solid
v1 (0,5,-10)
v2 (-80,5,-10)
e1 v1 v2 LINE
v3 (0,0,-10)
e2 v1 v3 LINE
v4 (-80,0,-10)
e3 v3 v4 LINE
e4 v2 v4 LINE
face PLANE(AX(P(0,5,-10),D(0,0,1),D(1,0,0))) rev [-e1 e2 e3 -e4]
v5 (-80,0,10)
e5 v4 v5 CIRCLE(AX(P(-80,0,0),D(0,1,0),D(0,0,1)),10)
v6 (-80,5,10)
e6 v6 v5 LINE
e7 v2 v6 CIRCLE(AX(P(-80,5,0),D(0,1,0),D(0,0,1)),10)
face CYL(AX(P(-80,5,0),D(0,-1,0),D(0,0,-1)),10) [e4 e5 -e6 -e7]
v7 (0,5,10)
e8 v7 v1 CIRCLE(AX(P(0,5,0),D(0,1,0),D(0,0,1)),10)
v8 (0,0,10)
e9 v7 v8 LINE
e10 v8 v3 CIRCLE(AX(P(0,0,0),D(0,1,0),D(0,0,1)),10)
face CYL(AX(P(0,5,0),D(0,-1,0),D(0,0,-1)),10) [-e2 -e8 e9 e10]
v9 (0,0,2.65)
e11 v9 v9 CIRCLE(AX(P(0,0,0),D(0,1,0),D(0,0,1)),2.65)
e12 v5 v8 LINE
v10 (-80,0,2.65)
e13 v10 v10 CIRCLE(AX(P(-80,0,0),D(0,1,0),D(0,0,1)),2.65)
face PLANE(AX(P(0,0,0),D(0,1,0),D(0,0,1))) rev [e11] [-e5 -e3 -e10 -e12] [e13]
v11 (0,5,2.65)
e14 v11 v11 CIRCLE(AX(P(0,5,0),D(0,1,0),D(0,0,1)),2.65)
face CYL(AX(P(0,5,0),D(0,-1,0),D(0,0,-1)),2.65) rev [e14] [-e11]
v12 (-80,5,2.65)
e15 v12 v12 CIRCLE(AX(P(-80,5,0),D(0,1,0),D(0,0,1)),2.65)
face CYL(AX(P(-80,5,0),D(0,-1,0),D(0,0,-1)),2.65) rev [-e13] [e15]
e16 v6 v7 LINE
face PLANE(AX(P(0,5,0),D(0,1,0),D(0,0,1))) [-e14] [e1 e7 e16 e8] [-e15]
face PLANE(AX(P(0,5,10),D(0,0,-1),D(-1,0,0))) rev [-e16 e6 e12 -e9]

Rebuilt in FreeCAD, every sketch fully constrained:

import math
import FreeCAD as App
import Part
import Sketcher
Q = App.Units.Quantity

doc = App.newDocument("Part")
body = doc.addObject("PartDesign::Body", "Body")

sketch1 = body.newObject("Sketcher::SketchObject", "Sketch")
sketch1.AttachmentSupport = (doc.getObject("XZ_Plane"), [""])
sketch1.MapMode = "FlatFace"
sketch1.addGeometry([
    Part.LineSegment(App.Vector(-80, 10, 0), App.Vector(0, 10, 0)),
    Part.ArcOfCircle(Part.Circle(App.Vector(0, 0, 0), App.Vector(0, 0, 1), 10), math.radians(-90), math.radians(90)),
    Part.LineSegment(App.Vector(0, -10, 0), App.Vector(-80, -10, 0)),
    Part.ArcOfCircle(Part.Circle(App.Vector(-80, 0, 0), App.Vector(0, 0, 1), 10), math.radians(90), math.radians(270)),
    Part.Circle(App.Vector(0, 0, 0), App.Vector(0, 0, 1), 2.65),
    Part.Circle(App.Vector(-80, 0, 0), App.Vector(0, 0, 1), 2.65),
], False)
sketch1.addConstraint([
    Sketcher.Constraint("Tangent", 0, 2, 1, 2),
    Sketcher.Constraint("Tangent", 1, 1, 2, 1),
    Sketcher.Constraint("Tangent", 2, 2, 3, 2),
    Sketcher.Constraint("Tangent", 3, 1, 0, 1),
    Sketcher.Constraint("Horizontal", 0),
    Sketcher.Constraint("Horizontal", 2),
    Sketcher.Constraint("Coincident", 1, 3, -1, 1),
    Sketcher.Constraint("Coincident", 4, 3, -1, 1),
    Sketcher.Constraint("Coincident", 5, 3, 3, 3),
    Sketcher.Constraint("Equal", 4, 5),
    Sketcher.Constraint("Radius", 1, Q("10 mm")),
    Sketcher.Constraint("Diameter", 4, Q("5.3 mm")),
    Sketcher.Constraint("DistanceX", 0, 1, 0, 2, Q("80 mm")),
])
pad1 = body.newObject("PartDesign::Pad", "Pad")
pad1.Profile = sketch1
pad1.Length = 5
pad1.Reversed = True

doc.recompute()
